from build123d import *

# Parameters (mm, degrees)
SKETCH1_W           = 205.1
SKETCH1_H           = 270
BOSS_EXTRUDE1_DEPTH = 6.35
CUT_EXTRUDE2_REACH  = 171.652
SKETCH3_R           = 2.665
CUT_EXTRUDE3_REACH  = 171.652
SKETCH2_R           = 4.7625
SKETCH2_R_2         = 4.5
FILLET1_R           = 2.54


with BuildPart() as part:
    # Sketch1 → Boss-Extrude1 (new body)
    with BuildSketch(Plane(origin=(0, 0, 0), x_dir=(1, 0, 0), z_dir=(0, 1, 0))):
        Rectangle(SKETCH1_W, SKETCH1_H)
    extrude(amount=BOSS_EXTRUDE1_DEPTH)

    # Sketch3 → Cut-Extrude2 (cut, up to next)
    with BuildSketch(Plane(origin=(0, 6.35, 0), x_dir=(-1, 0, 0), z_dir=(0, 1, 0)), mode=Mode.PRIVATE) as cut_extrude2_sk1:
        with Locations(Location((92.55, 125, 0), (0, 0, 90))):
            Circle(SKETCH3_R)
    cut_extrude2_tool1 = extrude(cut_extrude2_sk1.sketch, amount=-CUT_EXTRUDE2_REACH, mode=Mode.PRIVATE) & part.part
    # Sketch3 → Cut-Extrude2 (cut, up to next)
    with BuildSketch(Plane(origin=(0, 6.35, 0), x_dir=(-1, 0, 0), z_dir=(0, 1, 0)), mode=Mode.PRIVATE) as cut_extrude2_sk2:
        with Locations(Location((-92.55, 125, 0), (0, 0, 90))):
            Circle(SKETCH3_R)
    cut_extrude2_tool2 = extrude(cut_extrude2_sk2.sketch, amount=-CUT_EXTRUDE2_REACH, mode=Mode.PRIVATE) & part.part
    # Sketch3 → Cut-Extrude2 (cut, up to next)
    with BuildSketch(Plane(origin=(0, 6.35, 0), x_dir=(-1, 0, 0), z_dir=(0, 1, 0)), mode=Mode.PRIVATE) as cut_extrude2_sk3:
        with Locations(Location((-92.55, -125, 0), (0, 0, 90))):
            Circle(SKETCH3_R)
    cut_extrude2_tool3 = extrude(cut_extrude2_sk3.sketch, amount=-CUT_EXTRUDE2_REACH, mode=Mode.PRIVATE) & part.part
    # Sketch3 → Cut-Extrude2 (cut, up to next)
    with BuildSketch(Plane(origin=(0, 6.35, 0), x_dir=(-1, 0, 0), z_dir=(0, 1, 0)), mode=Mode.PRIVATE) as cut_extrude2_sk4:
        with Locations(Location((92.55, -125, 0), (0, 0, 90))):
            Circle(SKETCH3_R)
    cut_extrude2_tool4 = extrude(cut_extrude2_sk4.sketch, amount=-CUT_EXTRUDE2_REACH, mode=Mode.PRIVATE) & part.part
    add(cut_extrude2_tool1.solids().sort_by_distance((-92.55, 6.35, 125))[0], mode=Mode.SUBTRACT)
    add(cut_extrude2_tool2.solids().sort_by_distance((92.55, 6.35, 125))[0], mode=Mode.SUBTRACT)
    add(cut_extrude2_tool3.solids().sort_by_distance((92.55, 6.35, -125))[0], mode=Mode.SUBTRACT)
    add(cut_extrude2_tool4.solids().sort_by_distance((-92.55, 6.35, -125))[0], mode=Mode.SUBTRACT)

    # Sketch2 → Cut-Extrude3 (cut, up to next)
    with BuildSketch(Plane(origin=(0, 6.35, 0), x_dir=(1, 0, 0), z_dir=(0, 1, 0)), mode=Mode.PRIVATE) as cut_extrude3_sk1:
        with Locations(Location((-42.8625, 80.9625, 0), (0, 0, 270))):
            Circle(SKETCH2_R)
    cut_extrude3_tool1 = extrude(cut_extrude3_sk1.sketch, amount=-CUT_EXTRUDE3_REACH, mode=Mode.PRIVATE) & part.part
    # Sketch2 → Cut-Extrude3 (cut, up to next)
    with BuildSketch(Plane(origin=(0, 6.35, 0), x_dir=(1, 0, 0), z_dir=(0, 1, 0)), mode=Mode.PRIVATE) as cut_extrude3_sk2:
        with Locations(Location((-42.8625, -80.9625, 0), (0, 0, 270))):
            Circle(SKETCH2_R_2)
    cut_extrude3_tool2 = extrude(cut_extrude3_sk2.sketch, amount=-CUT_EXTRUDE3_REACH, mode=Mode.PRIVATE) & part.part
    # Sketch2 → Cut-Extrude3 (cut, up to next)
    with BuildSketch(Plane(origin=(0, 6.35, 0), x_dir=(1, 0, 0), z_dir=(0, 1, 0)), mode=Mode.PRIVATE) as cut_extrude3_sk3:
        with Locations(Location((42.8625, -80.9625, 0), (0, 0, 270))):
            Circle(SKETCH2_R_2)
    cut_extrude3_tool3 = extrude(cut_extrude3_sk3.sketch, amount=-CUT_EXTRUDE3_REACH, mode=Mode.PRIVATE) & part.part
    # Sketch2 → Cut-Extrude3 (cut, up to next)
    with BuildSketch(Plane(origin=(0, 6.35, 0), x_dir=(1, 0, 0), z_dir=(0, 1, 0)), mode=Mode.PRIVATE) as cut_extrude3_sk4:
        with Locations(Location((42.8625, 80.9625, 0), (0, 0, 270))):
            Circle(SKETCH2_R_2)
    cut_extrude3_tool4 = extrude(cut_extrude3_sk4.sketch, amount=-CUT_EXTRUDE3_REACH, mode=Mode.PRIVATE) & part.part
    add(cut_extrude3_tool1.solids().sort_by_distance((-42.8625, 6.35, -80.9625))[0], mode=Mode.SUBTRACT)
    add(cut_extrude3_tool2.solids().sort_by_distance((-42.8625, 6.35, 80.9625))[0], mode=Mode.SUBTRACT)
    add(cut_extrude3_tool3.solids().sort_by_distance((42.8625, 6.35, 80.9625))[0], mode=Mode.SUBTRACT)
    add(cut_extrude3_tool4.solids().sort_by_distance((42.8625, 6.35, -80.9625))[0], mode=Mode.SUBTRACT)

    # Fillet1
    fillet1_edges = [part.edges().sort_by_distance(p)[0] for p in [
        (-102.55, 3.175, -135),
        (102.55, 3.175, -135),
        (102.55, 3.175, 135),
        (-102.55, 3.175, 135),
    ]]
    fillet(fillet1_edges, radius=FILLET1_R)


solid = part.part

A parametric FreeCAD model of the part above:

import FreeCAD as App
import Part
import Sketcher

V = App.Vector
Q = App.Units.Quantity


def edges_at(feature, points):
    """Names of the edges that pass closest to the given points."""
    edges = feature.Shape.Edges
    near = lambda p: min(range(len(edges)), key=lambda i: edges[i].distToShape(Part.Vertex(*p))[0])
    return sorted({f"Edge{near(p) + 1}" for p in points})


def add_polygon(sketch, points):
    """Adds a closed chain of lines whose ends are joined by coincident constraints."""
    first, n = sketch.GeometryCount, len(points)
    for a, b in zip(points, points[1:] + points[:1]):
        sketch.addGeometry(Part.LineSegment(App.Vector(*a, 0), App.Vector(*b, 0)), False)
    for i in range(n):
        sketch.addConstraint(Sketcher.Constraint("Coincident", first + i, 2, first + (i + 1) % n, 1))

doc = App.newDocument("Part")
body = doc.addObject("PartDesign::Body", "Body")

# Sketch on XZ plane
sketch1 = body.newObject("Sketcher::SketchObject", "Sketch")
sketch1.AttachmentSupport = (doc.getObject("XZ_Plane"), [""])
sketch1.MapMode = "FlatFace"
add_polygon(sketch1, [(-102.55, -135), (-102.55, 135), (102.55, 135), (102.55, -135)])  # lines 0-3
sketch1.addConstraint(Sketcher.Constraint("Vertical", 0))
sketch1.addConstraint(Sketcher.Constraint("Horizontal", 1))
sketch1.addConstraint(Sketcher.Constraint("Vertical", 2))
sketch1.addConstraint(Sketcher.Constraint("Horizontal", 3))
sketch1.addConstraint(Sketcher.Constraint("Symmetric", 0, 2, 2, 2, -1, 1))
sketch1.addConstraint(Sketcher.Constraint("DistanceY", 0, 1, 0, 2, Q("270 mm")))
sketch1.addConstraint(Sketcher.Constraint("DistanceX", 1, 1, 1, 2, Q("205.1 mm")))
pad1 = body.newObject("PartDesign::Pad", "Pad")
pad1.Profile = sketch1
pad1.Length = 6.35
pad1.Reversed = True

# Sketch on XZ plane
sketch2 = body.newObject("Sketcher::SketchObject", "Sketch001")
sketch2.AttachmentSupport = (doc.getObject("XZ_Plane"), [""])
sketch2.MapMode = "FlatFace"
sketch2.AttachmentOffset = App.Placement(V(0, 0, -6.35), App.Rotation())
sketch2.addGeometry(Part.Circle(V(-92.55, 125, 0), V(0, 0, 1), 2.665), False)
sketch2.addConstraint(Sketcher.Constraint("Diameter", 0, Q("5.33 mm")))
sketch2.addConstraint(Sketcher.Constraint("DistanceY", -1, 1, 0, 3, Q("125 mm")))
sketch2.addConstraint(Sketcher.Constraint("DistanceX", 0, 3, -1, 1, Q("92.55 mm")))
pocket1 = body.newObject("PartDesign::Pocket", "Pocket")
pocket1.Profile = sketch2
pocket1.Type = "UpToFirst"
pocket1.Reversed = True

# Sketch on XZ plane
sketch3 = body.newObject("Sketcher::SketchObject", "Sketch002")
sketch3.AttachmentSupport = (doc.getObject("XZ_Plane"), [""])
sketch3.MapMode = "FlatFace"
sketch3.AttachmentOffset = App.Placement(V(0, 0, -6.35), App.Rotation())
sketch3.addGeometry(Part.Circle(V(92.55, 125, 0), V(0, 0, 1), 2.665), False)
sketch3.addConstraint(Sketcher.Constraint("Diameter", 0, Q("5.33 mm")))
sketch3.addConstraint(Sketcher.Constraint("DistanceY", -1, 1, 0, 3, Q("125 mm")))
sketch3.addConstraint(Sketcher.Constraint("DistanceX", -1, 1, 0, 3, Q("92.55 mm")))
pocket2 = body.newObject("PartDesign::Pocket", "Pocket001")
pocket2.Profile = sketch3
pocket2.Type = "UpToFirst"
pocket2.Reversed = True

# Sketch on XZ plane
sketch4 = body.newObject("Sketcher::SketchObject", "Sketch003")
sketch4.AttachmentSupport = (doc.getObject("XZ_Plane"), [""])
sketch4.MapMode = "FlatFace"
sketch4.AttachmentOffset = App.Placement(V(0, 0, -6.35), App.Rotation())
sketch4.addGeometry(Part.Circle(V(92.55, -125, 0), V(0, 0, 1), 2.665), False)
sketch4.addConstraint(Sketcher.Constraint("Diameter", 0, Q("5.33 mm")))
sketch4.addConstraint(Sketcher.Constraint("DistanceY", 0, 3, -1, 1, Q("125 mm")))
sketch4.addConstraint(Sketcher.Constraint("DistanceX", -1, 1, 0, 3, Q("92.55 mm")))
pocket3 = body.newObject("PartDesign::Pocket", "Pocket002")
pocket3.Profile = sketch4
pocket3.Type = "UpToFirst"
pocket3.Reversed = True

# Sketch on XZ plane
sketch5 = body.newObject("Sketcher::SketchObject", "Sketch004")
sketch5.AttachmentSupport = (doc.getObject("XZ_Plane"), [""])
sketch5.MapMode = "FlatFace"
sketch5.AttachmentOffset = App.Placement(V(0, 0, -6.35), App.Rotation())
sketch5.addGeometry(Part.Circle(V(-92.55, -125, 0), V(0, 0, 1), 2.665), False)
sketch5.addConstraint(Sketcher.Constraint("Diameter", 0, Q("5.33 mm")))
sketch5.addConstraint(Sketcher.Constraint("DistanceY", 0, 3, -1, 1, Q("125 mm")))
sketch5.addConstraint(Sketcher.Constraint("DistanceX", 0, 3, -1, 1, Q("92.55 mm")))
pocket4 = body.newObject("PartDesign::Pocket", "Pocket003")
pocket4.Profile = sketch5
pocket4.Type = "UpToFirst"
pocket4.Reversed = True

# Sketch on XZ plane
sketch6 = body.newObject("Sketcher::SketchObject", "Sketch005")
sketch6.AttachmentSupport = (doc.getObject("XZ_Plane"), [""])
sketch6.MapMode = "FlatFace"
sketch6.AttachmentOffset = App.Placement(V(0, 0, -6.35), App.Rotation())
sketch6.addGeometry(Part.Circle(V(-42.8625, -80.9625, 0), V(0, 0, 1), 4.7625), False)
sketch6.addConstraint(Sketcher.Constraint("Diameter", 0, Q("9.525 mm")))
sketch6.addConstraint(Sketcher.Constraint("DistanceX", 0, 3, -1, 1, Q("42.8625 mm")))
sketch6.addConstraint(Sketcher.Constraint("DistanceY", 0, 3, -1, 1, Q("80.9625 mm")))
pocket5 = body.newObject("PartDesign::Pocket", "Pocket004")
pocket5.Profile = sketch6
pocket5.Type = "UpToFirst"
pocket5.Reversed = True

# Sketch on XZ plane
sketch7 = body.newObject("Sketcher::SketchObject", "Sketch006")
sketch7.AttachmentSupport = (doc.getObject("XZ_Plane"), [""])
sketch7.MapMode = "FlatFace"
sketch7.AttachmentOffset = App.Placement(V(0, 0, -6.35), App.Rotation())
sketch7.addGeometry(Part.Circle(V(-42.8625, 80.9625, 0), V(0, 0, 1), 4.5), False)
sketch7.addConstraint(Sketcher.Constraint("Diameter", 0, Q("9 mm")))
sketch7.addConstraint(Sketcher.Constraint("DistanceX", 0, 3, -1, 1, Q("42.8625 mm")))
sketch7.addConstraint(Sketcher.Constraint("DistanceY", -1, 1, 0, 3, Q("80.9625 mm")))
pocket6 = body.newObject("PartDesign::Pocket", "Pocket005")
pocket6.Profile = sketch7
pocket6.Type = "UpToFirst"
pocket6.Reversed = True

# Sketch on XZ plane
sketch8 = body.newObject("Sketcher::SketchObject", "Sketch007")
sketch8.AttachmentSupport = (doc.getObject("XZ_Plane"), [""])
sketch8.MapMode = "FlatFace"
sketch8.AttachmentOffset = App.Placement(V(0, 0, -6.35), App.Rotation())
sketch8.addGeometry(Part.Circle(V(42.8625, 80.9625, 0), V(0, 0, 1), 4.5), False)
sketch8.addConstraint(Sketcher.Constraint("Diameter", 0, Q("9 mm")))
sketch8.addConstraint(Sketcher.Constraint("DistanceX", -1, 1, 0, 3, Q("42.8625 mm")))
sketch8.addConstraint(Sketcher.Constraint("DistanceY", -1, 1, 0, 3, Q("80.9625 mm")))
pocket7 = body.newObject("PartDesign::Pocket", "Pocket006")
pocket7.Profile = sketch8
pocket7.Type = "UpToFirst"
pocket7.Reversed = True

# Sketch on XZ plane
sketch9 = body.newObject("Sketcher::SketchObject", "Sketch008")
sketch9.AttachmentSupport = (doc.getObject("XZ_Plane"), [""])
sketch9.MapMode = "FlatFace"
sketch9.AttachmentOffset = App.Placement(V(0, 0, -6.35), App.Rotation())
sketch9.addGeometry(Part.Circle(V(42.8625, -80.9625, 0), V(0, 0, 1), 4.5), False)
sketch9.addConstraint(Sketcher.Constraint("Diameter", 0, Q("9 mm")))
sketch9.addConstraint(Sketcher.Constraint("DistanceX", -1, 1, 0, 3, Q("42.8625 mm")))
sketch9.addConstraint(Sketcher.Constraint("DistanceY", 0, 3, -1, 1, Q("80.9625 mm")))
pocket8 = body.newObject("PartDesign::Pocket", "Pocket007")
pocket8.Profile = sketch9
pocket8.Type = "UpToFirst"
pocket8.Reversed = True
doc.recompute()

fillet = body.newObject("PartDesign::Fillet", "Fillet")
fillet.Base = (pocket8, edges_at(pocket8, [
    (-102.55, 3.175, -135),
    (102.55, 3.175, -135),
    (102.55, 3.175, 135),
    (-102.55, 3.175, 135),
]))
fillet.Radius = 2.54

doc.recompute()
